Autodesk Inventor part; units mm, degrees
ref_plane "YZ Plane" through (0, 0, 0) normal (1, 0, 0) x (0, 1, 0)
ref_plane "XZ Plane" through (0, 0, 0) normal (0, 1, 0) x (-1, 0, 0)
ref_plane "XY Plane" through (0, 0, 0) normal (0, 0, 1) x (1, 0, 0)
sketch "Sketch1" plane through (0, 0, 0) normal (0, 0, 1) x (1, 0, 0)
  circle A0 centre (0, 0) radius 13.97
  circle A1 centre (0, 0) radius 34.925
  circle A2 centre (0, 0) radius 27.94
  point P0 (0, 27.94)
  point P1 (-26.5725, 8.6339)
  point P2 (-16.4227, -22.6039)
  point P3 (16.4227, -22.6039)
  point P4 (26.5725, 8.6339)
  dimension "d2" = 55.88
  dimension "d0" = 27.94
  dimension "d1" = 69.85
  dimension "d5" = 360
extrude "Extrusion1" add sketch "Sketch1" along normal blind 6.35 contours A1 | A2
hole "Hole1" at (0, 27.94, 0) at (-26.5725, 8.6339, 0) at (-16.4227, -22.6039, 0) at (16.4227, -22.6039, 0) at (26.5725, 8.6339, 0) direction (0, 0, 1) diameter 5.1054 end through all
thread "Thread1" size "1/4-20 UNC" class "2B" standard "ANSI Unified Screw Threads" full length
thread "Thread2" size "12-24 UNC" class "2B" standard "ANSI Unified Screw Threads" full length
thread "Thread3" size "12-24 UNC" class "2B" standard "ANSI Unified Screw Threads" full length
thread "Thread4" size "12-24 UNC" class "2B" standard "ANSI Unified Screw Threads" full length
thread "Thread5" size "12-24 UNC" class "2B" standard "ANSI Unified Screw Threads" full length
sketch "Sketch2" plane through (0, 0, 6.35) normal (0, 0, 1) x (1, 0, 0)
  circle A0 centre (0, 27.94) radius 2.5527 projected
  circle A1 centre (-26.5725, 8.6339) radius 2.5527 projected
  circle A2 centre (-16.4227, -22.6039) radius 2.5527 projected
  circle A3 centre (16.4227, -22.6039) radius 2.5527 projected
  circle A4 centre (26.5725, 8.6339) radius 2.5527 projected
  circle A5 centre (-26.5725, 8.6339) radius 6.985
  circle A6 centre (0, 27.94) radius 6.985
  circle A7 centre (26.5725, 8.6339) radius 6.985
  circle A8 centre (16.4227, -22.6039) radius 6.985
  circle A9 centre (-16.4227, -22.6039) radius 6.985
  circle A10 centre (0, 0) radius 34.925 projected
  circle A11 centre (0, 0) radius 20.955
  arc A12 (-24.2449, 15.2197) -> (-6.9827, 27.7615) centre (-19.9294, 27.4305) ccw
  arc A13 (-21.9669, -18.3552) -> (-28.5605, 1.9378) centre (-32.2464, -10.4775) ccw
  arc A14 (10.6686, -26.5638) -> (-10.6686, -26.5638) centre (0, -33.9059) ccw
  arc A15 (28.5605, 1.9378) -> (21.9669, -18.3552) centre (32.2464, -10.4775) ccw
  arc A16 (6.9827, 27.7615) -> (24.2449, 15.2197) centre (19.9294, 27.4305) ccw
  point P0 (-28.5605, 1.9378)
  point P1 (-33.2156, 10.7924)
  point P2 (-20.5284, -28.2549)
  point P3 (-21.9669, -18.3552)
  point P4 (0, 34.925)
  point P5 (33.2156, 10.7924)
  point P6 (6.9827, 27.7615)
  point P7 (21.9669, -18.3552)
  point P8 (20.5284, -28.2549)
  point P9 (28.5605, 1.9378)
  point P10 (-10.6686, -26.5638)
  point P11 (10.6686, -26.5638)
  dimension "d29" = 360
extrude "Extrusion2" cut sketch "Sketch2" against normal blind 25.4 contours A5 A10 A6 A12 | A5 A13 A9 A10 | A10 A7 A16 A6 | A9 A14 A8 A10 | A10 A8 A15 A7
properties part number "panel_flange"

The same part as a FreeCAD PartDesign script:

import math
import FreeCAD as App
import Part
import Sketcher

V = App.Vector
Q = App.Units.Quantity

doc = App.newDocument("Part")
body = doc.addObject("PartDesign::Body", "Body")

# Sketch on XY plane
sketch1 = body.newObject("Sketcher::SketchObject", "Sketch")
sketch1.AttachmentSupport = (doc.getObject("XY_Plane"), [""])
sketch1.MapMode = "FlatFace"
sketch1.addGeometry(Part.Circle(V(0, 0, 0), V(0, 0, 1), 34.925), False)
sketch1.addGeometry(Part.Circle(V(0, 0, 0), V(0, 0, 1), 13.97), False)
sketch1.addConstraint(Sketcher.Constraint("Coincident", 0, 3, -1, 1))
sketch1.addConstraint(Sketcher.Constraint("Coincident", 1, 3, -1, 1))
sketch1.addConstraint(Sketcher.Constraint("Diameter", 1, Q("1.1 in")))
sketch1.addConstraint(Sketcher.Constraint("Diameter", 0, Q("2.75 in")))
pad1 = body.newObject("PartDesign::Pad", "Pad")
pad1.Profile = sketch1
pad1.Length = Q("0.25 in")

# Sketch on XY plane
sketch2 = body.newObject("Sketcher::SketchObject", "Sketch001")
sketch2.AttachmentSupport = (doc.getObject("XY_Plane"), [""])
sketch2.MapMode = "FlatFace"
sketch2.addGeometry(Part.Circle(V(0, 27.94, 0), V(0, 0, 1), 2.5527), False)
sketch2.addGeometry(Part.Circle(V(-26.5725, 8.6339, 0), V(0, 0, 1), 2.5527), False)
sketch2.addGeometry(Part.Circle(V(-16.4227, -22.6039, 0), V(0, 0, 1), 2.5527), False)
sketch2.addGeometry(Part.Circle(V(16.4227, -22.6039, 0), V(0, 0, 1), 2.5527), False)
sketch2.addGeometry(Part.Circle(V(26.5725, 8.6339, 0), V(0, 0, 1), 2.5527), False)
sketch2.addConstraint(Sketcher.Constraint("Equal", 0, 1))
sketch2.addConstraint(Sketcher.Constraint("Equal", 1, 2))
sketch2.addConstraint(Sketcher.Constraint("Equal", 2, 3))
sketch2.addConstraint(Sketcher.Constraint("Equal", 3, 4))
sketch2.addConstraint(Sketcher.Constraint("Symmetric", 2, 3, 3, 3, -2))
sketch2.addConstraint(Sketcher.Constraint("Symmetric", 1, 3, 4, 3, -2))
sketch2.addConstraint(Sketcher.Constraint("PointOnObject", 0, 3, -2))
sketch2.addConstraint(Sketcher.Constraint("Diameter", 0, Q("0.201 in")))
sketch2.addConstraint(Sketcher.Constraint("DistanceY", -1, 1, 0, 3, Q("1.1 in")))
sketch2.addConstraint(Sketcher.Constraint("DistanceX", 1, 3, 2, 3, Q("0.3996 in")))
sketch2.addConstraint(Sketcher.Constraint("DistanceX", 1, 3, -1, 1, 26.5725))
sketch2.addConstraint(Sketcher.Constraint("DistanceY", -1, 1, 1, 3, 8.634))
sketch2.addConstraint(Sketcher.Constraint("DistanceY", 2, 3, -1, 1, 22.604))
doc.recompute()
hole = body.newObject("PartDesign::Hole", "Hole")
hole.Profile = sketch2
hole.ThreadType = "None"
hole.Diameter = Q("0.201 in")
hole.DepthType = "ThroughAll"
hole.Reversed = True

# Sketch on XY plane
sketch3 = body.newObject("Sketcher::SketchObject", "Sketch002")
sketch3.AttachmentSupport = (doc.getObject("XY_Plane"), [""])
sketch3.MapMode = "FlatFace"
sketch3.AttachmentOffset = App.Placement(V(0, 0, 0.25 * 25.4), App.Rotation())
sketch3.addGeometry(Part.ArcOfCircle(Part.Circle(V(-26.5725, 8.6339, 0), V(0, 0, 1), 6.985), math.radians(70.535213), math.radians(162.000058)), False)
sketch3.addGeometry(Part.ArcOfCircle(Part.Circle(V(-19.9294, 27.4305, 0), V(0, 0, 1), 12.950953), math.radians(-109.464256), math.radians(1.464526)), False)
sketch3.addGeometry(Part.ArcOfCircle(Part.Circle(V(0, 27.94, 0), V(0, 0, 1), 6.985), math.radians(90), math.radians(181.464343)), False)
sketch3.addGeometry(Part.ArcOfCircle(Part.Circle(V(0, 0, 0), V(0, 0, 1), 34.925), math.radians(90), math.radians(162.000056)), False)
sketch3.addGeometry(Part.ArcOfCircle(Part.Circle(V(-26.5725, 8.6339, 0), V(0, 0, 1), 6.985), math.radians(162.000058), math.radians(253.464413)), False)
sketch3.addGeometry(Part.ArcOfCircle(Part.Circle(V(0, 0, 0), V(0, 0, 1), 34.925), math.radians(162.000056), math.radians(233.999991)), False)
sketch3.addGeometry(Part.ArcOfCircle(Part.Circle(V(-16.4227, -22.6039, 0), V(0, 0, 1), 6.985), math.radians(142.535885), math.radians(233.999991)), False)
sketch3.addGeometry(Part.ArcOfCircle(Part.Circle(V(-32.2464, -10.4775, 0), V(0, 0, 1), 12.950918), math.radians(-37.464769), math.radians(73.464705)), False)
sketch3.addGeometry(Part.ArcOfCircle(Part.Circle(V(0, 0, 0), V(0, 0, 1), 34.925), math.radians(17.999944), math.radians(90)), False)
sketch3.addGeometry(Part.ArcOfCircle(Part.Circle(V(0, 27.94, 0), V(0, 0, 1), 6.985), math.radians(-1.464343), math.radians(90)), False)
sketch3.addGeometry(Part.ArcOfCircle(Part.Circle(V(19.9294, 27.4305, 0), V(0, 0, 1), 12.950931), math.radians(178.535474), math.radians(289.464256)), False)
sketch3.addGeometry(Part.ArcOfCircle(Part.Circle(V(26.5725, 8.6339, 0), V(0, 0, 1), 6.985), math.radians(17.999944), math.radians(109.464787)), False)
sketch3.addGeometry(Part.ArcOfCircle(Part.Circle(V(-16.4227, -22.6039, 0), V(0, 0, 1), 6.985), math.radians(-126.000009), math.radians(-34.535265)), False)
sketch3.addGeometry(Part.ArcOfCircle(Part.Circle(V(0, 0, 0), V(0, 0, 1), 34.925), math.radians(-126.000009), math.radians(-53.999991)), False)
sketch3.addGeometry(Part.ArcOfCircle(Part.Circle(V(16.4227, -22.6039, 0), V(0, 0, 1), 6.985), math.radians(-145.464735), math.radians(-53.999991)), False)
sketch3.addGeometry(Part.ArcOfCircle(Part.Circle(V(0, -33.9059, 0), V(0, 0, 1), 12.950886), math.radians(34.535637), math.radians(145.464363)), False)
sketch3.addGeometry(Part.ArcOfCircle(Part.Circle(V(0, 0, 0), V(0, 0, 1), 34.925), math.radians(-53.999991), math.radians(17.999944)), False)
sketch3.addGeometry(Part.ArcOfCircle(Part.Circle(V(26.5725, 8.6339, 0), V(0, 0, 1), 6.985), math.radians(-73.464413), math.radians(17.999944)), False)
sketch3.addGeometry(Part.ArcOfCircle(Part.Circle(V(32.2464, -10.4775, 0), V(0, 0, 1), 12.950889), math.radians(106.535295), math.radians(217.464769)), False)
sketch3.addGeometry(Part.ArcOfCircle(Part.Circle(V(16.4227, -22.6039, 0), V(0, 0, 1), 6.985), math.radians(-53.999991), math.radians(37.464115)), False)
sketch3.addConstraint(Sketcher.Constraint("Tangent", 0, 1, 1, 1))
sketch3.addConstraint(Sketcher.Constraint("Tangent", 1, 2, 2, 2))
sketch3.addConstraint(Sketcher.Constraint("Tangent", 2, 1, 3, 1))
sketch3.addConstraint(Sketcher.Constraint("Tangent", 3, 2, 0, 2))
sketch3.addConstraint(Sketcher.Constraint("Tangent", 4, 1, 5, 1))
sketch3.addConstraint(Sketcher.Constraint("Tangent", 5, 2, 6, 2))
sketch3.addConstraint(Sketcher.Constraint("Tangent", 6, 1, 7, 1))
sketch3.addConstraint(Sketcher.Constraint("Tangent", 7, 2, 4, 2))
sketch3.addConstraint(Sketcher.Constraint("Tangent", 8, 2, 9, 2))
sketch3.addConstraint(Sketcher.Constraint("Tangent", 9, 1, 10, 1))
sketch3.addConstraint(Sketcher.Constraint("Tangent", 10, 2, 11, 2))
sketch3.addConstraint(Sketcher.Constraint("Tangent", 11, 1, 8, 1))
sketch3.addConstraint(Sketcher.Constraint("Tangent", 12, 1, 13, 1))
sketch3.addConstraint(Sketcher.Constraint("Tangent", 13, 2, 14, 2))
sketch3.addConstraint(Sketcher.Constraint("Tangent", 14, 1, 15, 1))
sketch3.addConstraint(Sketcher.Constraint("Tangent", 15, 2, 12, 2))
sketch3.addConstraint(Sketcher.Constraint("Tangent", 16, 2, 17, 2))
sketch3.addConstraint(Sketcher.Constraint("Tangent", 17, 1, 18, 1))
sketch3.addConstraint(Sketcher.Constraint("Tangent", 18, 2, 19, 2))
sketch3.addConstraint(Sketcher.Constraint("Tangent", 19, 1, 16, 1))
sketch3.addConstraint(Sketcher.Constraint("Coincident", 3, 3, -1, 1))
sketch3.addConstraint(Sketcher.Constraint("Coincident", 5, 3, -1, 1))
sketch3.addConstraint(Sketcher.Constraint("Coincident", 8, 3, -1, 1))
sketch3.addConstraint(Sketcher.Constraint("Coincident", 13, 3, -1, 1))
sketch3.addConstraint(Sketcher.Constraint("Coincident", 16, 3, -1, 1))
sketch3.addConstraint(Sketcher.Constraint("Coincident", 4, 3, 0, 3))
sketch3.addConstraint(Sketcher.Constraint("Coincident", 9, 3, 2, 3))
sketch3.addConstraint(Sketcher.Constraint("Coincident", 12, 3, 6, 3))
sketch3.addConstraint(Sketcher.Constraint("Coincident", 17, 3, 11, 3))
sketch3.addConstraint(Sketcher.Constraint("Coincident", 19, 3, 14, 3))
sketch3.addConstraint(Sketcher.Constraint("Equal", 0, 2))
sketch3.addConstraint(Sketcher.Constraint("Equal", 2, 4))
sketch3.addConstraint(Sketcher.Constraint("Equal", 4, 6))
sketch3.addConstraint(Sketcher.Constraint("Equal", 1, 7))
sketch3.addConstraint(Sketcher.Constraint("Equal", 5, 8))
sketch3.addConstraint(Sketcher.Constraint("Equal", 7, 10))
sketch3.addConstraint(Sketcher.Constraint("Equal", 9, 11))
sketch3.addConstraint(Sketcher.Constraint("Equal", 11, 12))
sketch3.addConstraint(Sketcher.Constraint("Equal", 12, 14))
sketch3.addConstraint(Sketcher.Constraint("Equal", 10, 15))
sketch3.addConstraint(Sketcher.Constraint("Equal", 13, 16))
sketch3.addConstraint(Sketcher.Constraint("Equal", 15, 18))
sketch3.addConstraint(Sketcher.Constraint("Symmetric", 1, 3, 10, 3, -2))
sketch3.addConstraint(Sketcher.Constraint("PointOnObject", 15, 3, -2))
sketch3.addConstraint(Sketcher.Constraint("Radius", 0, Q("0.275 in")))
sketch3.addConstraint(Sketcher.Constraint("Radius", 3, Q("1.375 in")))
sketch3.addConstraint(Sketcher.Constraint("Radius", 1, 12.951))
sketch3.addConstraint(Sketcher.Constraint("DistanceY", 7, 3, -1, 1, Q("0.4125 in")))
sketch3.addConstraint(Sketcher.Constraint("DistanceY", -1, 1, 0, 1, Q("0.5992 in")))
pocket1 = body.newObject("PartDesign::Pocket", "Pocket")
pocket1.Profile = sketch3
pocket1.Length = Q("1 in")

doc.recompute()
